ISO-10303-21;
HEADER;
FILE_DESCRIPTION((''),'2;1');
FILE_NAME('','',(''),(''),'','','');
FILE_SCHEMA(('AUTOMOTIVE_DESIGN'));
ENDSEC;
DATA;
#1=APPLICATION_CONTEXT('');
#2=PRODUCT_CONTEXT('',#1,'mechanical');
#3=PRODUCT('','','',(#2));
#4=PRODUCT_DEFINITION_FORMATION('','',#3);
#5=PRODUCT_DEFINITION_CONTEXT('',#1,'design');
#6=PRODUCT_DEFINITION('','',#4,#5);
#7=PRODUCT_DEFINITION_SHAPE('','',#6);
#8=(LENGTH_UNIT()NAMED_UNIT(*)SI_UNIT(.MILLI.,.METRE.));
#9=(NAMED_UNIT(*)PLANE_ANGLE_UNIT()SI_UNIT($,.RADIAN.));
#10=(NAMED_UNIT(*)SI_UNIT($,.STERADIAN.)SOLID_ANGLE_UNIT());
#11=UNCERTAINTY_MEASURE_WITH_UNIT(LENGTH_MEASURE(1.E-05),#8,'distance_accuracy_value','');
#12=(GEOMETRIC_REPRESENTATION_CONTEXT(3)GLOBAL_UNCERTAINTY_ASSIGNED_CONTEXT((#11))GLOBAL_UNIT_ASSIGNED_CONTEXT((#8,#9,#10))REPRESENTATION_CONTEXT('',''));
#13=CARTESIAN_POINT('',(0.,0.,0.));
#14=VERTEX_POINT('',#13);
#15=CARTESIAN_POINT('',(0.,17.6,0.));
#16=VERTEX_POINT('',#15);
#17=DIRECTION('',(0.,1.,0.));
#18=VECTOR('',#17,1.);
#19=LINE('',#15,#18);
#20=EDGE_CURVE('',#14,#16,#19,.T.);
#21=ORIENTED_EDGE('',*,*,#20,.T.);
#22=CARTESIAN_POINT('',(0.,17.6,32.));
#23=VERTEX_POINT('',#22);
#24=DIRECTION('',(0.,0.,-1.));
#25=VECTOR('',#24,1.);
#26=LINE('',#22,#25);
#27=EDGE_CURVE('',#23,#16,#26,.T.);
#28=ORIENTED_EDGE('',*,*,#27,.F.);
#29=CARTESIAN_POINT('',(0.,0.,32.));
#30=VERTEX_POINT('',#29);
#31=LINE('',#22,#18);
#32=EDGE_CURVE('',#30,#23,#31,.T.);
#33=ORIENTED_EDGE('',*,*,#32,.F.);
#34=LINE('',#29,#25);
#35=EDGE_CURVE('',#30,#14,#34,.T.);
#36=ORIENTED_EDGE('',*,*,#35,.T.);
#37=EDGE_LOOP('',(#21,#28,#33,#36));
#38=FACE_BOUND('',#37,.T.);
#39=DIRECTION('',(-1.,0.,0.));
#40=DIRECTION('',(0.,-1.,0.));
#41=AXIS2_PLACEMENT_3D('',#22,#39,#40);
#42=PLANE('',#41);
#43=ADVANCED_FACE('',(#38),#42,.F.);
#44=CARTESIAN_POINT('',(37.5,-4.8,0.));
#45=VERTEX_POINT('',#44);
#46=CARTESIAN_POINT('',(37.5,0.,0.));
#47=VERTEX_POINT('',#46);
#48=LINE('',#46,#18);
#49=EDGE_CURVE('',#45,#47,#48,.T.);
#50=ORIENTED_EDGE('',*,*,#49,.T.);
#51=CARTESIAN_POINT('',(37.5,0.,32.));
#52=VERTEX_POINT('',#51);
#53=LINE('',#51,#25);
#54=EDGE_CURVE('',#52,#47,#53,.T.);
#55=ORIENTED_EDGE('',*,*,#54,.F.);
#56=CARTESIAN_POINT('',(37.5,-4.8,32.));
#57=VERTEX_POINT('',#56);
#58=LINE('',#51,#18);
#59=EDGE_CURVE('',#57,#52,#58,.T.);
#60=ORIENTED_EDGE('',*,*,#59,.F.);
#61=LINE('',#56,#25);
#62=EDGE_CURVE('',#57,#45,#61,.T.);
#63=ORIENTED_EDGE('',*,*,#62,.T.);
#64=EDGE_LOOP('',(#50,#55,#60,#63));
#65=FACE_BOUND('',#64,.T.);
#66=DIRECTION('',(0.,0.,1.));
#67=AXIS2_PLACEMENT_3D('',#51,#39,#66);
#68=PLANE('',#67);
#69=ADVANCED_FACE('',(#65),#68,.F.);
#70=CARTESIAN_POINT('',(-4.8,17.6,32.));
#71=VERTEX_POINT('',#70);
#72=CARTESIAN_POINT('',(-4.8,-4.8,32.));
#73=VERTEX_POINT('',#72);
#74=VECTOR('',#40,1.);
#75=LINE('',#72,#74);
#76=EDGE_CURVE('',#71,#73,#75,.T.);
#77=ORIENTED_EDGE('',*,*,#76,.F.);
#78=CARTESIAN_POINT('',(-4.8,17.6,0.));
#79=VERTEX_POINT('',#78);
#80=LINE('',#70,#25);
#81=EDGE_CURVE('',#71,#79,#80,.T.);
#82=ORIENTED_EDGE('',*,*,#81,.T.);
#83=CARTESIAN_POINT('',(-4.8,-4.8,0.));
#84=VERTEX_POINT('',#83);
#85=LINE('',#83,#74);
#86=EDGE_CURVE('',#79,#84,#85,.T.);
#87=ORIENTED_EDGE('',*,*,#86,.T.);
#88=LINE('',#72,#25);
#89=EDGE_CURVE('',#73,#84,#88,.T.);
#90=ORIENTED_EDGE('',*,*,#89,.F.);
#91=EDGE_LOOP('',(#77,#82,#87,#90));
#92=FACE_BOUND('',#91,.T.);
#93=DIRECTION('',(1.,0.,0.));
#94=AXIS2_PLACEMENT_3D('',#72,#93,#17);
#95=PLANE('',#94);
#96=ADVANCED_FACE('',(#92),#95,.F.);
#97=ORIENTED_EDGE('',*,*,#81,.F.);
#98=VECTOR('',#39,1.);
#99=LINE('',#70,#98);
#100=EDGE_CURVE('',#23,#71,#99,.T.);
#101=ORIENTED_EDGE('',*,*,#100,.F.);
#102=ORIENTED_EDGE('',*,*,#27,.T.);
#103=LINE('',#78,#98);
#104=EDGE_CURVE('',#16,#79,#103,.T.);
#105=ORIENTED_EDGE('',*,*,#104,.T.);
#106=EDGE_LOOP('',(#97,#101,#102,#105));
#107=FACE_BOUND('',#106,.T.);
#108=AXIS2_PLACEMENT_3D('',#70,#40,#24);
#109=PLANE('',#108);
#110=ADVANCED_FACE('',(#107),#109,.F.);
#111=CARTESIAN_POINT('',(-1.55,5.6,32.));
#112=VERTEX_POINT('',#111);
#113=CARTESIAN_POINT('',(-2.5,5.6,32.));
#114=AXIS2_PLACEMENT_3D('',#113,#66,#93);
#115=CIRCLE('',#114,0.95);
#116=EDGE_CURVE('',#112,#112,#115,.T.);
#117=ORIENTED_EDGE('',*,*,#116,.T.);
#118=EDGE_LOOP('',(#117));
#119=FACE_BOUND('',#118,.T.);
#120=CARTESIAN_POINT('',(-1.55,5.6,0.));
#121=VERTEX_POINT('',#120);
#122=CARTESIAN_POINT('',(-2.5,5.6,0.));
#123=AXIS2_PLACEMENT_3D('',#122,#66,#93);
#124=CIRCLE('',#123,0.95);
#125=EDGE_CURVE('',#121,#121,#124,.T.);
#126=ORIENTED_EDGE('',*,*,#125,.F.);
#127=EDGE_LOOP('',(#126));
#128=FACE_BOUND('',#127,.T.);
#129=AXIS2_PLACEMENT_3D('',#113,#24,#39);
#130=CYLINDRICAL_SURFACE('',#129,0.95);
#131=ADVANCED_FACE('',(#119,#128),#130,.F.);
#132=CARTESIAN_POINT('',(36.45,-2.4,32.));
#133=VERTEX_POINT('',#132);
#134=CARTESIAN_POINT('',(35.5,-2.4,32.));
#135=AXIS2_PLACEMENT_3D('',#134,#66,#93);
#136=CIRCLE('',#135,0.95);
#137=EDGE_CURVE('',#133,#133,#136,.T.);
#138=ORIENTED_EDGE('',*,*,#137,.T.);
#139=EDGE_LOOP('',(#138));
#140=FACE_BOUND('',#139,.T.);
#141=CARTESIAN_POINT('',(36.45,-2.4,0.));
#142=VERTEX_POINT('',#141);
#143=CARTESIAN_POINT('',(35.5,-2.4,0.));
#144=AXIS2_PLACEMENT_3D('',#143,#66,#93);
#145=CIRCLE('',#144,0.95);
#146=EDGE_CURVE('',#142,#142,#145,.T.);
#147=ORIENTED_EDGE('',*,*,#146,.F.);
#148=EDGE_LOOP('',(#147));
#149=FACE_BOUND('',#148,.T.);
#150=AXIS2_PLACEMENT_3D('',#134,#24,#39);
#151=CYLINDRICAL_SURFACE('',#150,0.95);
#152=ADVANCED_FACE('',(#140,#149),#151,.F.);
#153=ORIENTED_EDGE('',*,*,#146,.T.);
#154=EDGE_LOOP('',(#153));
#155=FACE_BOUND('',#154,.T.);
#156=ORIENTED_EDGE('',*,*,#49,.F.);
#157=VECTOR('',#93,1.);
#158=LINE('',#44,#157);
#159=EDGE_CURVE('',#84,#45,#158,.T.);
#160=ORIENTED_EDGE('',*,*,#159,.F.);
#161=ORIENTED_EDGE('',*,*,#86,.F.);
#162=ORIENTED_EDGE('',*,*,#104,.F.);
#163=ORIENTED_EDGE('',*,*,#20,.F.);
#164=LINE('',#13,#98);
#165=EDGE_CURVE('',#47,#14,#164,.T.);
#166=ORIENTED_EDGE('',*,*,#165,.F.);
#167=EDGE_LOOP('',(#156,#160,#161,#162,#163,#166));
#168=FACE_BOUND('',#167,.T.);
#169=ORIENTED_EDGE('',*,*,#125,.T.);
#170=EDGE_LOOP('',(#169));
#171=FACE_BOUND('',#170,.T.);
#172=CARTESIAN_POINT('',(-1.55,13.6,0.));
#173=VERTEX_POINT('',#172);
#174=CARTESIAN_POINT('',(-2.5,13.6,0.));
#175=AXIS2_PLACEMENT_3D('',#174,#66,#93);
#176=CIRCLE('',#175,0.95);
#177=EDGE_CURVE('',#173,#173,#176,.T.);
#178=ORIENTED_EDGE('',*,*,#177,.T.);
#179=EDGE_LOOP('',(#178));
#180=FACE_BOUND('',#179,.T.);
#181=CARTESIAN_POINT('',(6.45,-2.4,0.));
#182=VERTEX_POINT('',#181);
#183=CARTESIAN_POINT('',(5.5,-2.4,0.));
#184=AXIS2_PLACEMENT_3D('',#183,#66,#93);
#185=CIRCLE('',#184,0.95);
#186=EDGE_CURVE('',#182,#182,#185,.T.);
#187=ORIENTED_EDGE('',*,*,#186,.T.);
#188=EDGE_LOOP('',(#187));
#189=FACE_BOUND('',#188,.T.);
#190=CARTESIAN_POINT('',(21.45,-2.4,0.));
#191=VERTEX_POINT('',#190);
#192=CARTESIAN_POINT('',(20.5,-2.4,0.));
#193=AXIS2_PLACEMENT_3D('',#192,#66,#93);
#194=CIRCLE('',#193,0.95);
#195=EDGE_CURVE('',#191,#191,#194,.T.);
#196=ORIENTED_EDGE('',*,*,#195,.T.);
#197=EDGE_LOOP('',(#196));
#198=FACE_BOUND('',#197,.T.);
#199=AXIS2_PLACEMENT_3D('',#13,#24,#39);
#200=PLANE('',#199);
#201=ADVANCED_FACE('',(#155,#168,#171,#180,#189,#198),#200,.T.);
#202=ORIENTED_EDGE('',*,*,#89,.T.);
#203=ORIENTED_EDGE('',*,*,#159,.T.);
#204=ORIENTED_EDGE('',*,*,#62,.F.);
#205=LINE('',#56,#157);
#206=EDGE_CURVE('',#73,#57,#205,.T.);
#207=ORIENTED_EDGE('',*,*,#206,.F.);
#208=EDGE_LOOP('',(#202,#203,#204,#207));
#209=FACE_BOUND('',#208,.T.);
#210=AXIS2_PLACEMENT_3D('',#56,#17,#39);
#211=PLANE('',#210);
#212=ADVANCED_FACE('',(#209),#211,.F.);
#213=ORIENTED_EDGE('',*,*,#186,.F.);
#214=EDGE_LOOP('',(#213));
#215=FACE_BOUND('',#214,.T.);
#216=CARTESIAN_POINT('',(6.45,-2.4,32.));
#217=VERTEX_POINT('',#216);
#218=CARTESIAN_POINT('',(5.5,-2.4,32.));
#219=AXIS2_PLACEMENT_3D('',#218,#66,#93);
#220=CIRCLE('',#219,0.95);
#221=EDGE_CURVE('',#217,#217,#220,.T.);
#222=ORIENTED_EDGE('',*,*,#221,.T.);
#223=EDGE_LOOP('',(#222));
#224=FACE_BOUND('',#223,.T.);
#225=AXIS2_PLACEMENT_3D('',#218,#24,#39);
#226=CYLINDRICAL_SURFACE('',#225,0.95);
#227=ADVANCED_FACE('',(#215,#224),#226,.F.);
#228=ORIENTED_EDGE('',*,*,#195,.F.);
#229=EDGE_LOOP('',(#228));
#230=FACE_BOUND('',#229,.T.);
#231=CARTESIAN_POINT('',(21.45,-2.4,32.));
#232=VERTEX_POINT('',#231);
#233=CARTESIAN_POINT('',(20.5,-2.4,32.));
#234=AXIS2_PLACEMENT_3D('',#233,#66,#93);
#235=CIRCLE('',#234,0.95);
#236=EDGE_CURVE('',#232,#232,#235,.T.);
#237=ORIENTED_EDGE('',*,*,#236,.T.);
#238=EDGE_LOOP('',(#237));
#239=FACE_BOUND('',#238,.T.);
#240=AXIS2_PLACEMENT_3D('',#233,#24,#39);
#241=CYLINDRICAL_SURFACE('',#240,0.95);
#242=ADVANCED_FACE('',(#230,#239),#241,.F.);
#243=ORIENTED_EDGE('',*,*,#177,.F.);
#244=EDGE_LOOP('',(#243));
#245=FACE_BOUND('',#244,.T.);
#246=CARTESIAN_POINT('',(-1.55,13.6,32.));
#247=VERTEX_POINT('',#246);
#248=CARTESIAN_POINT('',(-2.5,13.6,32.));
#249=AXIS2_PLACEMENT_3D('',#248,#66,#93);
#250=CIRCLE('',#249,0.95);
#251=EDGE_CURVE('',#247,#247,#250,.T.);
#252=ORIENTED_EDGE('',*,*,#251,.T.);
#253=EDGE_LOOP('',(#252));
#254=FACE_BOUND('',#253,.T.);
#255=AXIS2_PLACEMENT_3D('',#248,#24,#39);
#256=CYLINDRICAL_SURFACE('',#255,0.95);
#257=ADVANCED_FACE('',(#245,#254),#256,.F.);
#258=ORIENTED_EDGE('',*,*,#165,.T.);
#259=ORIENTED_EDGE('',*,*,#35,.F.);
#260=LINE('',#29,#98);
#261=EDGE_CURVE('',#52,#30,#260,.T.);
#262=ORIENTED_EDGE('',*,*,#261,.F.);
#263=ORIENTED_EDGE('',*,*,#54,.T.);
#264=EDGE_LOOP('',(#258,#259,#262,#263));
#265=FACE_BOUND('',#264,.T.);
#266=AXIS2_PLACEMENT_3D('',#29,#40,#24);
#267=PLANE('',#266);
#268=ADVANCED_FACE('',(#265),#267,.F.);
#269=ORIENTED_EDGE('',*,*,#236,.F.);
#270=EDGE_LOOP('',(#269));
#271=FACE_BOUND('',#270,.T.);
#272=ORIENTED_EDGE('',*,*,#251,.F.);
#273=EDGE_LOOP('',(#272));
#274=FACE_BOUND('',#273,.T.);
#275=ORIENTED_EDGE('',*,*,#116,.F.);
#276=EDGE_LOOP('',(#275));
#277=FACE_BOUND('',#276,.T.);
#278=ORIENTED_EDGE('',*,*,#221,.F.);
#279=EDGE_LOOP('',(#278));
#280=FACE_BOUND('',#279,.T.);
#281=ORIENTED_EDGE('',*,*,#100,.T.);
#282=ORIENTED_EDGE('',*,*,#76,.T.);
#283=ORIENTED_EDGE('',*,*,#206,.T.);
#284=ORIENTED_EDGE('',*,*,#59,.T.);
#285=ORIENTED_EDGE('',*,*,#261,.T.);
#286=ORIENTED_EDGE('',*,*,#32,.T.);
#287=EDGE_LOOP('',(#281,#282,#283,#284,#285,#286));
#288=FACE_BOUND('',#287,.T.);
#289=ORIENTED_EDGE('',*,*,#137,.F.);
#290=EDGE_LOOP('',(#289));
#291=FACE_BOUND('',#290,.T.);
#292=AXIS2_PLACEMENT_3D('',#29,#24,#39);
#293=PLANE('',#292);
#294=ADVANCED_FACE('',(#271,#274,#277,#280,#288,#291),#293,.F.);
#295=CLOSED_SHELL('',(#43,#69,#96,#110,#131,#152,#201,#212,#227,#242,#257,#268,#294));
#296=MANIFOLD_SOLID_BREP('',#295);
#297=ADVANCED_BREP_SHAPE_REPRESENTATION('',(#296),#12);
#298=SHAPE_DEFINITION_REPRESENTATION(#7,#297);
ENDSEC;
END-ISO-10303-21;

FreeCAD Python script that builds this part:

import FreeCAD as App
import Part
import Sketcher

V = App.Vector
Q = App.Units.Quantity


def add_polygon(sketch, points):
    """Adds a closed chain of lines whose ends are joined by coincident constraints."""
    first, n = sketch.GeometryCount, len(points)
    for a, b in zip(points, points[1:] + points[:1]):
        sketch.addGeometry(Part.LineSegment(App.Vector(*a, 0), App.Vector(*b, 0)), False)
    for i in range(n):
        sketch.addConstraint(Sketcher.Constraint("Coincident", first + i, 2, first + (i + 1) % n, 1))

doc = App.newDocument("Part")
body = doc.addObject("PartDesign::Body", "Body")

sketch1 = doc.addObject("Sketcher::SketchObject", "Sketch")
body.addObject(sketch1)
sketch1.AttachmentSupport = (doc.XY_Plane, [""])
sketch1.MapMode = "FlatFace"
add_polygon(sketch1, [(0, 0), (0, 17.6), (-4.8, 17.6), (-4.8, -4.8), (37.5, -4.8), (37.5, 0)])
sketch1.addGeometry(Part.Circle(V(35.5, -2.4, 0), V(0, 0, 1), 0.9), False)
sketch1.addGeometry(Part.Circle(V(20.5, -2.4, 0), V(0, 0, 1), 0.9), False)
sketch1.addGeometry(Part.Circle(V(5.5, -2.4, 0), V(0, 0, 1), 0.9), False)
sketch1.addGeometry(Part.Circle(V(-2.5, 5.6, 0), V(0, 0, 1), 0.9), False)
sketch1.addGeometry(Part.Circle(V(-2.5, 13.6, 0), V(0, 0, 1), 0.9), False)
sketch1.addConstraint([
    Sketcher.Constraint("Vertical", 0),
    Sketcher.Constraint("Horizontal", 1),
    Sketcher.Constraint("Vertical", 2),
    Sketcher.Constraint("Horizontal", 3),
    Sketcher.Constraint("Vertical", 4),
    Sketcher.Constraint("Horizontal", 5),
    Sketcher.Constraint("Coincident", 5, 2, -1, 1),
    Sketcher.Constraint("Equal", 6, 7),
    Sketcher.Constraint("Equal", 7, 8),
    Sketcher.Constraint("Equal", 8, 9),
    Sketcher.Constraint("Equal", 9, 10),
    Sketcher.Constraint("Horizontal", 6, 3, 7, 3),
    Sketcher.Constraint("Horizontal", 7, 3, 8, 3),
    Sketcher.Constraint("Vertical", 9, 3, 10, 3),
    Sketcher.Constraint("Equal", 1, 4),
    Sketcher.Constraint("Diameter", 6, Q("1.9 mm")),
    Sketcher.Constraint("DistanceX", 1, 2, 1, 1, Q("4.8 mm")),
    Sketcher.Constraint("DistanceX", 3, 1, 3, 2, Q("42.3 mm")),
    Sketcher.Constraint("DistanceY", 0, 1, 0, 2, Q("17.6 mm")),
    Sketcher.Constraint("DistanceX", 7, 3, 6, 3, Q("15 mm")),
    Sketcher.Constraint("DistanceX", 8, 3, 7, 3, Q("15 mm")),
    Sketcher.Constraint("DistanceX", 9, 3, 8, 3, Q("8 mm")),
    Sketcher.Constraint("DistanceY", 8, 3, 9, 3, Q("8 mm")),
    Sketcher.Constraint("DistanceY", 9, 3, 10, 3, Q("8 mm")),
    Sketcher.Constraint("DistanceY", 10, 3, 0, 2, Q("4 mm")),
    Sketcher.Constraint("DistanceX", 6, 3, 3, 2, Q("2 mm")),
])
pad1 = doc.addObject("PartDesign::Pad", "Pad")
body.addObject(pad1)
pad1.Profile = sketch1
pad1.Length = 32

doc.recompute()
